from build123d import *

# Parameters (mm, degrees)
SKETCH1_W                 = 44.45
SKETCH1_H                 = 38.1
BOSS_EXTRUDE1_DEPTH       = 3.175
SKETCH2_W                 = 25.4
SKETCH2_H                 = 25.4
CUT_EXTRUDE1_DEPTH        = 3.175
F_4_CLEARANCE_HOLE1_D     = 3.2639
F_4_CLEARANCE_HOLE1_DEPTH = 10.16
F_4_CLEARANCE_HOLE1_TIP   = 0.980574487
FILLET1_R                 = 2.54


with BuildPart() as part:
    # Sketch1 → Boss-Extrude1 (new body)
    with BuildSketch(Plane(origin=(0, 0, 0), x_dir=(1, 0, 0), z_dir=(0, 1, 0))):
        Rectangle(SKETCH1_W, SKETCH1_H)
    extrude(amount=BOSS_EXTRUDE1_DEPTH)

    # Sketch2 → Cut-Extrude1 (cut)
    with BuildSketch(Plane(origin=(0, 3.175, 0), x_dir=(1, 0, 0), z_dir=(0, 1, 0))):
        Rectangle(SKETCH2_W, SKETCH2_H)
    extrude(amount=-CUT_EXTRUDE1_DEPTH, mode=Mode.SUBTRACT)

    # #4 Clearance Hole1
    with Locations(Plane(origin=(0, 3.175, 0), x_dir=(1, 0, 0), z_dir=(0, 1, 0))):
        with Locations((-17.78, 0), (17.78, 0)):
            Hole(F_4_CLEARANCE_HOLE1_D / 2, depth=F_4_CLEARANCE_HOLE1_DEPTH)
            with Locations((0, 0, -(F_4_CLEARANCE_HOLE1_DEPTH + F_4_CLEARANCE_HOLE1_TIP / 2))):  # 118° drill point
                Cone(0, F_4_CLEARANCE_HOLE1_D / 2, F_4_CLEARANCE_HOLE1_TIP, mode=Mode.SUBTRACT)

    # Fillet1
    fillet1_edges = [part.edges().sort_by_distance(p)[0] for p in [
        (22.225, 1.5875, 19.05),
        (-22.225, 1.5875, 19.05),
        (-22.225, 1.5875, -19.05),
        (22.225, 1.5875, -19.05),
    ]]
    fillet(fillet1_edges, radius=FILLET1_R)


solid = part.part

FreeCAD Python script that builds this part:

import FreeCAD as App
import Part
import Sketcher

V = App.Vector
Q = App.Units.Quantity


def edges_at(feature, points):
    """Names of the edges that pass closest to the given points."""
    edges = feature.Shape.Edges
    near = lambda p: min(range(len(edges)), key=lambda i: edges[i].distToShape(Part.Vertex(*p))[0])
    return sorted({f"Edge{near(p) + 1}" for p in points})


def add_polygon(sketch, points):
    """Adds a closed chain of lines whose ends are joined by coincident constraints."""
    first, n = sketch.GeometryCount, len(points)
    for a, b in zip(points, points[1:] + points[:1]):
        sketch.addGeometry(Part.LineSegment(App.Vector(*a, 0), App.Vector(*b, 0)), False)
    for i in range(n):
        sketch.addConstraint(Sketcher.Constraint("Coincident", first + i, 2, first + (i + 1) % n, 1))

doc = App.newDocument("Part")
body = doc.addObject("PartDesign::Body", "Body")

# Sketch on XZ plane
sketch1 = body.newObject("Sketcher::SketchObject", "Sketch")
sketch1.AttachmentSupport = (doc.getObject("XZ_Plane"), [""])
sketch1.MapMode = "FlatFace"
add_polygon(sketch1, [(-22, -19), (-22, 19), (22, 19), (22, -19)])  # lines 0-3
sketch1.addConstraint(Sketcher.Constraint("Vertical", 0))
sketch1.addConstraint(Sketcher.Constraint("Horizontal", 1))
sketch1.addConstraint(Sketcher.Constraint("Vertical", 2))
sketch1.addConstraint(Sketcher.Constraint("Horizontal", 3))
sketch1.addConstraint(Sketcher.Constraint("Symmetric", 0, 2, 2, 2, -1, 1))
sketch1.addConstraint(Sketcher.Constraint("DistanceY", 0, 1, 0, 2, Q("1.5 in")))
sketch1.addConstraint(Sketcher.Constraint("DistanceX", 1, 1, 1, 2, Q("1.75 in")))
pad1 = body.newObject("PartDesign::Pad", "Pad")
pad1.Profile = sketch1
pad1.Length = Q("0.125 in")
pad1.Reversed = True

# Sketch on XZ plane
sketch2 = body.newObject("Sketcher::SketchObject", "Sketch001")
sketch2.AttachmentSupport = (doc.getObject("XZ_Plane"), [""])
sketch2.MapMode = "FlatFace"
sketch2.AttachmentOffset = App.Placement(V(0, 0, -0.125 * 25.4), App.Rotation())
add_polygon(sketch2, [(-13, -13), (-13, 13), (13, 13), (13, -13)])  # lines 0-3
sketch2.addConstraint(Sketcher.Constraint("Vertical", 0))
sketch2.addConstraint(Sketcher.Constraint("Horizontal", 1))
sketch2.addConstraint(Sketcher.Constraint("Vertical", 2))
sketch2.addConstraint(Sketcher.Constraint("Horizontal", 3))
sketch2.addConstraint(Sketcher.Constraint("Symmetric", 0, 2, 2, 2, -1, 1))
sketch2.addConstraint(Sketcher.Constraint("Equal", 3, 0))
sketch2.addConstraint(Sketcher.Constraint("DistanceX", 1, 1, 1, 2, Q("1 in")))
pocket1 = body.newObject("PartDesign::Pocket", "Pocket")
pocket1.Profile = sketch2
pocket1.Length = Q("0.125 in")
pocket1.Reversed = True

# Sketch on XZ plane
sketch3 = body.newObject("Sketcher::SketchObject", "Sketch002")
sketch3.AttachmentSupport = (doc.getObject("XZ_Plane"), [""])
sketch3.MapMode = "FlatFace"
sketch3.AttachmentOffset = App.Placement(V(0, 0, -0.125 * 25.4), App.Rotation())
sketch3.addGeometry(Part.Circle(V(-17.8, 0, 0), V(0, 0, 1), 1.6), False)
sketch3.addGeometry(Part.Circle(V(17.8, 0, 0), V(0, 0, 1), 1.6), False)
sketch3.addConstraint(Sketcher.Constraint("Equal", 0, 1))
sketch3.addConstraint(Sketcher.Constraint("Symmetric", 0, 3, 1, 3, -1, 1))
sketch3.addConstraint(Sketcher.Constraint("PointOnObject", 0, 3, -1))
sketch3.addConstraint(Sketcher.Constraint("Diameter", 0, Q("0.1285 in")))
sketch3.addConstraint(Sketcher.Constraint("DistanceX", 0, 3, -1, 1, Q("0.7 in")))
doc.recompute()
hole = body.newObject("PartDesign::Hole", "Hole")
hole.Profile = sketch3
hole.ThreadType = "None"
hole.Diameter = Q("0.1285 in")
hole.DepthType = "Dimension"
hole.Depth = Q("0.4 in")
hole.DrillPoint = "Angled"
hole.DrillPointAngle = 118
hole.Reversed = True
doc.recompute()

fillet = body.newObject("PartDesign::Fillet", "Fillet")
fillet.Base = (hole, edges_at(hole, [
    (22.225, 1.587, 19.05),
    (-22.225, 1.587, 19.05),
    (-22.225, 1.587, -19.05),
    (22.225, 1.587, -19.05),
]))
fillet.Radius = Q("0.1 in")

doc.recompute()
